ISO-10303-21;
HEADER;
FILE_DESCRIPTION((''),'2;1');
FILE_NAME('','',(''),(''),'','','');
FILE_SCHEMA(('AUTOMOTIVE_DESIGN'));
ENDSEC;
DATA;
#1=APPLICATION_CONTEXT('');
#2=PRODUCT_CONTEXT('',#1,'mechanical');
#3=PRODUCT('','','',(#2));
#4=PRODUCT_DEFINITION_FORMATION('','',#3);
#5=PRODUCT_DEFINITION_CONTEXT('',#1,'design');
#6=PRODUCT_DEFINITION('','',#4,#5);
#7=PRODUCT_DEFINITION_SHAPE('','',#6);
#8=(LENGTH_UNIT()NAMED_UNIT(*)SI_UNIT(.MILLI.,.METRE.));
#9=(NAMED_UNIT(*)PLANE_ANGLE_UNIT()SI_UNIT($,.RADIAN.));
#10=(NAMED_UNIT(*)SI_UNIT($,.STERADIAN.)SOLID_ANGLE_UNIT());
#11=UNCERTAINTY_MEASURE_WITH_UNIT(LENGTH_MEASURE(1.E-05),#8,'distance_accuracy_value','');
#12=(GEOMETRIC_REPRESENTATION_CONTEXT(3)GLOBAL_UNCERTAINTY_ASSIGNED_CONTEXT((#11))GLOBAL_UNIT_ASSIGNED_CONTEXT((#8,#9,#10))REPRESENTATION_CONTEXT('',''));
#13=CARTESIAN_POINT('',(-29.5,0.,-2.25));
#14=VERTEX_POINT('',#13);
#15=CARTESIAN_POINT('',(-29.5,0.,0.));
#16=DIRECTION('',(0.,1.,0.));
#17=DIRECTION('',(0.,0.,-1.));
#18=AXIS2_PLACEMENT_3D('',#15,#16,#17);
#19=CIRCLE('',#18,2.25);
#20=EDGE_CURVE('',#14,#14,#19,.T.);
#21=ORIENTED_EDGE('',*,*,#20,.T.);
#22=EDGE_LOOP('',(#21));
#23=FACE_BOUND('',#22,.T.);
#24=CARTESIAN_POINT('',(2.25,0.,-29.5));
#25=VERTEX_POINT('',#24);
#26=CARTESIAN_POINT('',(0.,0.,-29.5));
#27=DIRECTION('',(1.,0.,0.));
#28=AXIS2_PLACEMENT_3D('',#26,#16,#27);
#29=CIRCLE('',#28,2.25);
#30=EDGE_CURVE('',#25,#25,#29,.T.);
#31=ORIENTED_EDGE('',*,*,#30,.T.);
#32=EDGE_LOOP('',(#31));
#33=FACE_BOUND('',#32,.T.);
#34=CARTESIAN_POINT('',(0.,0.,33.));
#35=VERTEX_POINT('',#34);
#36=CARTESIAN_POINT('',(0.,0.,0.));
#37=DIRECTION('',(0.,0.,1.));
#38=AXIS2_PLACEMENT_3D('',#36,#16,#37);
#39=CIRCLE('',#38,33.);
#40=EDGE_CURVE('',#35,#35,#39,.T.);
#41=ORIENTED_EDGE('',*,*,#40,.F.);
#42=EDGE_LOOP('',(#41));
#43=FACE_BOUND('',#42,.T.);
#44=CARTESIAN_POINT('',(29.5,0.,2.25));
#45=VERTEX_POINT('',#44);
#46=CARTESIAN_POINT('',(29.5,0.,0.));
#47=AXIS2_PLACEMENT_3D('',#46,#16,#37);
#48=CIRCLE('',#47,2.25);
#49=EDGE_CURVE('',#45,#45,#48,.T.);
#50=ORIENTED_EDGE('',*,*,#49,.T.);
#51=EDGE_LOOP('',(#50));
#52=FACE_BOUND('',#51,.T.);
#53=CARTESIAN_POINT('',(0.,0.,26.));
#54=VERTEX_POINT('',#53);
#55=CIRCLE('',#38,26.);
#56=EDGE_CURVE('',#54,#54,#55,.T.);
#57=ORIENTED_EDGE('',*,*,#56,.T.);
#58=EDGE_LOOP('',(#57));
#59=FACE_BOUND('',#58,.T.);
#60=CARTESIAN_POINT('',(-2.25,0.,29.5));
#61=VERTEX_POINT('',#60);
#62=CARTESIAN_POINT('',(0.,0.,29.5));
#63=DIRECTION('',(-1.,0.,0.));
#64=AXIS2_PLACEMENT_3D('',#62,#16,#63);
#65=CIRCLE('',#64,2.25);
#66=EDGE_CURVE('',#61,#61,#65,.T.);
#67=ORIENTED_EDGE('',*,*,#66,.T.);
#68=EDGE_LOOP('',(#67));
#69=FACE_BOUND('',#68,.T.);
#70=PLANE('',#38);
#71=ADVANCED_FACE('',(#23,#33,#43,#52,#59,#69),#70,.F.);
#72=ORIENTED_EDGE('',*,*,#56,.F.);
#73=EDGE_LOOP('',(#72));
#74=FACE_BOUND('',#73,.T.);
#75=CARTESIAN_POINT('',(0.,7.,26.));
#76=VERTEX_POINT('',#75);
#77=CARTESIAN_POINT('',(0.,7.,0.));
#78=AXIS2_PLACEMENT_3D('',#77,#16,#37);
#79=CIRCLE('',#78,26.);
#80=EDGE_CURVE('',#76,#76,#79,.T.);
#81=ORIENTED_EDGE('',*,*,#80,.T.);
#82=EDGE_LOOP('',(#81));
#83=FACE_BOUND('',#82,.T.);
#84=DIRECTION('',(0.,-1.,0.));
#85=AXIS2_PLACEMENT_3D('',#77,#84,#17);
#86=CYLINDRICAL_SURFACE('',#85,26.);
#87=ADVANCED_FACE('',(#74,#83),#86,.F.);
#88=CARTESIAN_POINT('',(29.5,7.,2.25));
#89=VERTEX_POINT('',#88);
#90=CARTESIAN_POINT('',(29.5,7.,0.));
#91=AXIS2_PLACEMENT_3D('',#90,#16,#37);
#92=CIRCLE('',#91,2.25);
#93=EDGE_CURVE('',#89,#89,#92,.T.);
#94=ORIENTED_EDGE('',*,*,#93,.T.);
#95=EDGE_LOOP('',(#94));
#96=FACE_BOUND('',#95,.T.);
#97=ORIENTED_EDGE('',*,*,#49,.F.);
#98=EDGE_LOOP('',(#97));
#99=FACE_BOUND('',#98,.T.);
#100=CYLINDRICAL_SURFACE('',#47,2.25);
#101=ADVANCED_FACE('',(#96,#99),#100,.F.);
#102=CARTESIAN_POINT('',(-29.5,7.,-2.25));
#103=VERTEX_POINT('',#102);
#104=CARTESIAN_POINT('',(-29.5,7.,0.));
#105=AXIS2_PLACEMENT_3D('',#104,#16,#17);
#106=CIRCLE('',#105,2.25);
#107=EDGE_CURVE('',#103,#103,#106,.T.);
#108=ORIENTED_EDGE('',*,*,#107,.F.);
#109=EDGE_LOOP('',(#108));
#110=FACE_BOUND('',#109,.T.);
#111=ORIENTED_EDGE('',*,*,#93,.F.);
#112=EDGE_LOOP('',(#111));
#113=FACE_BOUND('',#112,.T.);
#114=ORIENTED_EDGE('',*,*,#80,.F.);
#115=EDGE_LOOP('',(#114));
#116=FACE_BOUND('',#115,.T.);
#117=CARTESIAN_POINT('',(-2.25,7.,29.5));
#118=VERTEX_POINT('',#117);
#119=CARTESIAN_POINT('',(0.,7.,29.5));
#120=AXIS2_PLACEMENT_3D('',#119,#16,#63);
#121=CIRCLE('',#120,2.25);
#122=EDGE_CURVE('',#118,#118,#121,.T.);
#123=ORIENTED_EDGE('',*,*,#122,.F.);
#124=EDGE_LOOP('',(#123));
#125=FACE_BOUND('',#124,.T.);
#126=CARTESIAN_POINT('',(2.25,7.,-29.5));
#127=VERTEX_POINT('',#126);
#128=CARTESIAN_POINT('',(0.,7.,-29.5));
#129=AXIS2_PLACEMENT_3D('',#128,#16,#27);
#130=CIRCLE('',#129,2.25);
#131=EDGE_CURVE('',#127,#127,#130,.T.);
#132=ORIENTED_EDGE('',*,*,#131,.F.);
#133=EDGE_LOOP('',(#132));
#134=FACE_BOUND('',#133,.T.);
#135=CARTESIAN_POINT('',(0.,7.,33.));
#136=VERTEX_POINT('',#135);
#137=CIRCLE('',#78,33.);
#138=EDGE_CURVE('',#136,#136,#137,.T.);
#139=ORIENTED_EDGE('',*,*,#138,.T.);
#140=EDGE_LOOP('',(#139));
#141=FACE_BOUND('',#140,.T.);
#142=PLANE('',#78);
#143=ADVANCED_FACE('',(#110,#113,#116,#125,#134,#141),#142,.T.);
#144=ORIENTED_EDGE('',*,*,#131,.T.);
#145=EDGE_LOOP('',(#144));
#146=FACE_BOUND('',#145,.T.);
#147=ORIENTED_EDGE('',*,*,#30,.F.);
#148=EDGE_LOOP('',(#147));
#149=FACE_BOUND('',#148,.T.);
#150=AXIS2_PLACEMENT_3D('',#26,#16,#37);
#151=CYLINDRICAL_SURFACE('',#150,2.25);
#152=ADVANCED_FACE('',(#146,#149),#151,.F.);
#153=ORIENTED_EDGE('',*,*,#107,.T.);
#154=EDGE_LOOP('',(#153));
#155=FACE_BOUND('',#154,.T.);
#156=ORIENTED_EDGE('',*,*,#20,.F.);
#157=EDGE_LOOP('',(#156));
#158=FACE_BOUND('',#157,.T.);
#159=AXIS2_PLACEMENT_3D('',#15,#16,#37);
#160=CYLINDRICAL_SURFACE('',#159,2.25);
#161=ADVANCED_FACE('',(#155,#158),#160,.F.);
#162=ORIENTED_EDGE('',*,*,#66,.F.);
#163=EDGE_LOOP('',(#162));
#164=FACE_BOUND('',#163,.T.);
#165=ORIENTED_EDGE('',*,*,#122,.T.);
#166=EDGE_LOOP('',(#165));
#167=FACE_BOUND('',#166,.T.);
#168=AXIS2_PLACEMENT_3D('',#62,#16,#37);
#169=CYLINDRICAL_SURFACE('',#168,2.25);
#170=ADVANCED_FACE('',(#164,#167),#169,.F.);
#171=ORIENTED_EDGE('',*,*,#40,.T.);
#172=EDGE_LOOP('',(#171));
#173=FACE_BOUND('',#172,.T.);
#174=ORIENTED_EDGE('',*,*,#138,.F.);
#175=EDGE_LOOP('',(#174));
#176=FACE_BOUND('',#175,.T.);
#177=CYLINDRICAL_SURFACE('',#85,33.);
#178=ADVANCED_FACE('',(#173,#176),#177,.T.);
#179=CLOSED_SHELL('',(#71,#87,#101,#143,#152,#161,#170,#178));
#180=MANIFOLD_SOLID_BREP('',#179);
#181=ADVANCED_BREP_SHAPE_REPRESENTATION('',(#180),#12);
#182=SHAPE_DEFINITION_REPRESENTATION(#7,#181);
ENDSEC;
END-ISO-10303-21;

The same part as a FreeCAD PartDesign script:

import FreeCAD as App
import Part
import Sketcher

V = App.Vector

doc = App.newDocument("Part")
body = doc.addObject("PartDesign::Body", "Body")

sketch1 = body.newObject("Sketcher::SketchObject", "Sketch")
sketch1.AttachmentSupport = (doc.getObject("XZ_Plane"), [""])
sketch1.MapMode = "FlatFace"
sketch1.addGeometry([
    Part.Circle(V(0, 0, 0), V(0, 0, 1), 33),
    Part.Circle(V(0, 0, 0), V(0, 0, 1), 26),
], False)
sketch1.addConstraint([
    Sketcher.Constraint("Coincident", 0, 3, -1, 1),
    Sketcher.Constraint("Coincident", 1, 3, -1, 1),
    Sketcher.Constraint("Diameter", 0, 66.0),
    Sketcher.Constraint("Diameter", 1, 52.0),
])
pad1 = body.newObject("PartDesign::Pad", "Pad")
pad1.Profile = sketch1
pad1.Length = 7
pad1.Reversed = True

sketch2 = body.newObject("Sketcher::SketchObject", "Sketch001")
sketch2.AttachmentSupport = (doc.getObject("XZ_Plane"), [""])
sketch2.MapMode = "FlatFace"
sketch2.AttachmentOffset = App.Placement(V(0, 0, -7), App.Rotation())
sketch2.addGeometry(Part.Circle(V(29.5, 0, 0), V(0, 0, 1), 2.2), False)
sketch2.addConstraint([
    Sketcher.Constraint("PointOnObject", 0, 3, -1),
    Sketcher.Constraint("Diameter", 0, 4.5),
    Sketcher.Constraint("DistanceX", -1, 1, 0, 3, 29.5),
])
pocket1 = body.newObject("PartDesign::Pocket", "Pocket")
pocket1.Profile = sketch2
pocket1.Type = "ThroughAll"
pocket1.Reversed = True
doc.recompute()

polarpattern = body.newObject("PartDesign::PolarPattern", "PolarPattern")
polarpattern.Originals = [pocket1]
polarpattern.Axis = (doc.getObject("Y_Axis"), [""])
polarpattern.Angle = 360
polarpattern.Occurrences = 4
body.Tip = polarpattern

doc.recompute()
